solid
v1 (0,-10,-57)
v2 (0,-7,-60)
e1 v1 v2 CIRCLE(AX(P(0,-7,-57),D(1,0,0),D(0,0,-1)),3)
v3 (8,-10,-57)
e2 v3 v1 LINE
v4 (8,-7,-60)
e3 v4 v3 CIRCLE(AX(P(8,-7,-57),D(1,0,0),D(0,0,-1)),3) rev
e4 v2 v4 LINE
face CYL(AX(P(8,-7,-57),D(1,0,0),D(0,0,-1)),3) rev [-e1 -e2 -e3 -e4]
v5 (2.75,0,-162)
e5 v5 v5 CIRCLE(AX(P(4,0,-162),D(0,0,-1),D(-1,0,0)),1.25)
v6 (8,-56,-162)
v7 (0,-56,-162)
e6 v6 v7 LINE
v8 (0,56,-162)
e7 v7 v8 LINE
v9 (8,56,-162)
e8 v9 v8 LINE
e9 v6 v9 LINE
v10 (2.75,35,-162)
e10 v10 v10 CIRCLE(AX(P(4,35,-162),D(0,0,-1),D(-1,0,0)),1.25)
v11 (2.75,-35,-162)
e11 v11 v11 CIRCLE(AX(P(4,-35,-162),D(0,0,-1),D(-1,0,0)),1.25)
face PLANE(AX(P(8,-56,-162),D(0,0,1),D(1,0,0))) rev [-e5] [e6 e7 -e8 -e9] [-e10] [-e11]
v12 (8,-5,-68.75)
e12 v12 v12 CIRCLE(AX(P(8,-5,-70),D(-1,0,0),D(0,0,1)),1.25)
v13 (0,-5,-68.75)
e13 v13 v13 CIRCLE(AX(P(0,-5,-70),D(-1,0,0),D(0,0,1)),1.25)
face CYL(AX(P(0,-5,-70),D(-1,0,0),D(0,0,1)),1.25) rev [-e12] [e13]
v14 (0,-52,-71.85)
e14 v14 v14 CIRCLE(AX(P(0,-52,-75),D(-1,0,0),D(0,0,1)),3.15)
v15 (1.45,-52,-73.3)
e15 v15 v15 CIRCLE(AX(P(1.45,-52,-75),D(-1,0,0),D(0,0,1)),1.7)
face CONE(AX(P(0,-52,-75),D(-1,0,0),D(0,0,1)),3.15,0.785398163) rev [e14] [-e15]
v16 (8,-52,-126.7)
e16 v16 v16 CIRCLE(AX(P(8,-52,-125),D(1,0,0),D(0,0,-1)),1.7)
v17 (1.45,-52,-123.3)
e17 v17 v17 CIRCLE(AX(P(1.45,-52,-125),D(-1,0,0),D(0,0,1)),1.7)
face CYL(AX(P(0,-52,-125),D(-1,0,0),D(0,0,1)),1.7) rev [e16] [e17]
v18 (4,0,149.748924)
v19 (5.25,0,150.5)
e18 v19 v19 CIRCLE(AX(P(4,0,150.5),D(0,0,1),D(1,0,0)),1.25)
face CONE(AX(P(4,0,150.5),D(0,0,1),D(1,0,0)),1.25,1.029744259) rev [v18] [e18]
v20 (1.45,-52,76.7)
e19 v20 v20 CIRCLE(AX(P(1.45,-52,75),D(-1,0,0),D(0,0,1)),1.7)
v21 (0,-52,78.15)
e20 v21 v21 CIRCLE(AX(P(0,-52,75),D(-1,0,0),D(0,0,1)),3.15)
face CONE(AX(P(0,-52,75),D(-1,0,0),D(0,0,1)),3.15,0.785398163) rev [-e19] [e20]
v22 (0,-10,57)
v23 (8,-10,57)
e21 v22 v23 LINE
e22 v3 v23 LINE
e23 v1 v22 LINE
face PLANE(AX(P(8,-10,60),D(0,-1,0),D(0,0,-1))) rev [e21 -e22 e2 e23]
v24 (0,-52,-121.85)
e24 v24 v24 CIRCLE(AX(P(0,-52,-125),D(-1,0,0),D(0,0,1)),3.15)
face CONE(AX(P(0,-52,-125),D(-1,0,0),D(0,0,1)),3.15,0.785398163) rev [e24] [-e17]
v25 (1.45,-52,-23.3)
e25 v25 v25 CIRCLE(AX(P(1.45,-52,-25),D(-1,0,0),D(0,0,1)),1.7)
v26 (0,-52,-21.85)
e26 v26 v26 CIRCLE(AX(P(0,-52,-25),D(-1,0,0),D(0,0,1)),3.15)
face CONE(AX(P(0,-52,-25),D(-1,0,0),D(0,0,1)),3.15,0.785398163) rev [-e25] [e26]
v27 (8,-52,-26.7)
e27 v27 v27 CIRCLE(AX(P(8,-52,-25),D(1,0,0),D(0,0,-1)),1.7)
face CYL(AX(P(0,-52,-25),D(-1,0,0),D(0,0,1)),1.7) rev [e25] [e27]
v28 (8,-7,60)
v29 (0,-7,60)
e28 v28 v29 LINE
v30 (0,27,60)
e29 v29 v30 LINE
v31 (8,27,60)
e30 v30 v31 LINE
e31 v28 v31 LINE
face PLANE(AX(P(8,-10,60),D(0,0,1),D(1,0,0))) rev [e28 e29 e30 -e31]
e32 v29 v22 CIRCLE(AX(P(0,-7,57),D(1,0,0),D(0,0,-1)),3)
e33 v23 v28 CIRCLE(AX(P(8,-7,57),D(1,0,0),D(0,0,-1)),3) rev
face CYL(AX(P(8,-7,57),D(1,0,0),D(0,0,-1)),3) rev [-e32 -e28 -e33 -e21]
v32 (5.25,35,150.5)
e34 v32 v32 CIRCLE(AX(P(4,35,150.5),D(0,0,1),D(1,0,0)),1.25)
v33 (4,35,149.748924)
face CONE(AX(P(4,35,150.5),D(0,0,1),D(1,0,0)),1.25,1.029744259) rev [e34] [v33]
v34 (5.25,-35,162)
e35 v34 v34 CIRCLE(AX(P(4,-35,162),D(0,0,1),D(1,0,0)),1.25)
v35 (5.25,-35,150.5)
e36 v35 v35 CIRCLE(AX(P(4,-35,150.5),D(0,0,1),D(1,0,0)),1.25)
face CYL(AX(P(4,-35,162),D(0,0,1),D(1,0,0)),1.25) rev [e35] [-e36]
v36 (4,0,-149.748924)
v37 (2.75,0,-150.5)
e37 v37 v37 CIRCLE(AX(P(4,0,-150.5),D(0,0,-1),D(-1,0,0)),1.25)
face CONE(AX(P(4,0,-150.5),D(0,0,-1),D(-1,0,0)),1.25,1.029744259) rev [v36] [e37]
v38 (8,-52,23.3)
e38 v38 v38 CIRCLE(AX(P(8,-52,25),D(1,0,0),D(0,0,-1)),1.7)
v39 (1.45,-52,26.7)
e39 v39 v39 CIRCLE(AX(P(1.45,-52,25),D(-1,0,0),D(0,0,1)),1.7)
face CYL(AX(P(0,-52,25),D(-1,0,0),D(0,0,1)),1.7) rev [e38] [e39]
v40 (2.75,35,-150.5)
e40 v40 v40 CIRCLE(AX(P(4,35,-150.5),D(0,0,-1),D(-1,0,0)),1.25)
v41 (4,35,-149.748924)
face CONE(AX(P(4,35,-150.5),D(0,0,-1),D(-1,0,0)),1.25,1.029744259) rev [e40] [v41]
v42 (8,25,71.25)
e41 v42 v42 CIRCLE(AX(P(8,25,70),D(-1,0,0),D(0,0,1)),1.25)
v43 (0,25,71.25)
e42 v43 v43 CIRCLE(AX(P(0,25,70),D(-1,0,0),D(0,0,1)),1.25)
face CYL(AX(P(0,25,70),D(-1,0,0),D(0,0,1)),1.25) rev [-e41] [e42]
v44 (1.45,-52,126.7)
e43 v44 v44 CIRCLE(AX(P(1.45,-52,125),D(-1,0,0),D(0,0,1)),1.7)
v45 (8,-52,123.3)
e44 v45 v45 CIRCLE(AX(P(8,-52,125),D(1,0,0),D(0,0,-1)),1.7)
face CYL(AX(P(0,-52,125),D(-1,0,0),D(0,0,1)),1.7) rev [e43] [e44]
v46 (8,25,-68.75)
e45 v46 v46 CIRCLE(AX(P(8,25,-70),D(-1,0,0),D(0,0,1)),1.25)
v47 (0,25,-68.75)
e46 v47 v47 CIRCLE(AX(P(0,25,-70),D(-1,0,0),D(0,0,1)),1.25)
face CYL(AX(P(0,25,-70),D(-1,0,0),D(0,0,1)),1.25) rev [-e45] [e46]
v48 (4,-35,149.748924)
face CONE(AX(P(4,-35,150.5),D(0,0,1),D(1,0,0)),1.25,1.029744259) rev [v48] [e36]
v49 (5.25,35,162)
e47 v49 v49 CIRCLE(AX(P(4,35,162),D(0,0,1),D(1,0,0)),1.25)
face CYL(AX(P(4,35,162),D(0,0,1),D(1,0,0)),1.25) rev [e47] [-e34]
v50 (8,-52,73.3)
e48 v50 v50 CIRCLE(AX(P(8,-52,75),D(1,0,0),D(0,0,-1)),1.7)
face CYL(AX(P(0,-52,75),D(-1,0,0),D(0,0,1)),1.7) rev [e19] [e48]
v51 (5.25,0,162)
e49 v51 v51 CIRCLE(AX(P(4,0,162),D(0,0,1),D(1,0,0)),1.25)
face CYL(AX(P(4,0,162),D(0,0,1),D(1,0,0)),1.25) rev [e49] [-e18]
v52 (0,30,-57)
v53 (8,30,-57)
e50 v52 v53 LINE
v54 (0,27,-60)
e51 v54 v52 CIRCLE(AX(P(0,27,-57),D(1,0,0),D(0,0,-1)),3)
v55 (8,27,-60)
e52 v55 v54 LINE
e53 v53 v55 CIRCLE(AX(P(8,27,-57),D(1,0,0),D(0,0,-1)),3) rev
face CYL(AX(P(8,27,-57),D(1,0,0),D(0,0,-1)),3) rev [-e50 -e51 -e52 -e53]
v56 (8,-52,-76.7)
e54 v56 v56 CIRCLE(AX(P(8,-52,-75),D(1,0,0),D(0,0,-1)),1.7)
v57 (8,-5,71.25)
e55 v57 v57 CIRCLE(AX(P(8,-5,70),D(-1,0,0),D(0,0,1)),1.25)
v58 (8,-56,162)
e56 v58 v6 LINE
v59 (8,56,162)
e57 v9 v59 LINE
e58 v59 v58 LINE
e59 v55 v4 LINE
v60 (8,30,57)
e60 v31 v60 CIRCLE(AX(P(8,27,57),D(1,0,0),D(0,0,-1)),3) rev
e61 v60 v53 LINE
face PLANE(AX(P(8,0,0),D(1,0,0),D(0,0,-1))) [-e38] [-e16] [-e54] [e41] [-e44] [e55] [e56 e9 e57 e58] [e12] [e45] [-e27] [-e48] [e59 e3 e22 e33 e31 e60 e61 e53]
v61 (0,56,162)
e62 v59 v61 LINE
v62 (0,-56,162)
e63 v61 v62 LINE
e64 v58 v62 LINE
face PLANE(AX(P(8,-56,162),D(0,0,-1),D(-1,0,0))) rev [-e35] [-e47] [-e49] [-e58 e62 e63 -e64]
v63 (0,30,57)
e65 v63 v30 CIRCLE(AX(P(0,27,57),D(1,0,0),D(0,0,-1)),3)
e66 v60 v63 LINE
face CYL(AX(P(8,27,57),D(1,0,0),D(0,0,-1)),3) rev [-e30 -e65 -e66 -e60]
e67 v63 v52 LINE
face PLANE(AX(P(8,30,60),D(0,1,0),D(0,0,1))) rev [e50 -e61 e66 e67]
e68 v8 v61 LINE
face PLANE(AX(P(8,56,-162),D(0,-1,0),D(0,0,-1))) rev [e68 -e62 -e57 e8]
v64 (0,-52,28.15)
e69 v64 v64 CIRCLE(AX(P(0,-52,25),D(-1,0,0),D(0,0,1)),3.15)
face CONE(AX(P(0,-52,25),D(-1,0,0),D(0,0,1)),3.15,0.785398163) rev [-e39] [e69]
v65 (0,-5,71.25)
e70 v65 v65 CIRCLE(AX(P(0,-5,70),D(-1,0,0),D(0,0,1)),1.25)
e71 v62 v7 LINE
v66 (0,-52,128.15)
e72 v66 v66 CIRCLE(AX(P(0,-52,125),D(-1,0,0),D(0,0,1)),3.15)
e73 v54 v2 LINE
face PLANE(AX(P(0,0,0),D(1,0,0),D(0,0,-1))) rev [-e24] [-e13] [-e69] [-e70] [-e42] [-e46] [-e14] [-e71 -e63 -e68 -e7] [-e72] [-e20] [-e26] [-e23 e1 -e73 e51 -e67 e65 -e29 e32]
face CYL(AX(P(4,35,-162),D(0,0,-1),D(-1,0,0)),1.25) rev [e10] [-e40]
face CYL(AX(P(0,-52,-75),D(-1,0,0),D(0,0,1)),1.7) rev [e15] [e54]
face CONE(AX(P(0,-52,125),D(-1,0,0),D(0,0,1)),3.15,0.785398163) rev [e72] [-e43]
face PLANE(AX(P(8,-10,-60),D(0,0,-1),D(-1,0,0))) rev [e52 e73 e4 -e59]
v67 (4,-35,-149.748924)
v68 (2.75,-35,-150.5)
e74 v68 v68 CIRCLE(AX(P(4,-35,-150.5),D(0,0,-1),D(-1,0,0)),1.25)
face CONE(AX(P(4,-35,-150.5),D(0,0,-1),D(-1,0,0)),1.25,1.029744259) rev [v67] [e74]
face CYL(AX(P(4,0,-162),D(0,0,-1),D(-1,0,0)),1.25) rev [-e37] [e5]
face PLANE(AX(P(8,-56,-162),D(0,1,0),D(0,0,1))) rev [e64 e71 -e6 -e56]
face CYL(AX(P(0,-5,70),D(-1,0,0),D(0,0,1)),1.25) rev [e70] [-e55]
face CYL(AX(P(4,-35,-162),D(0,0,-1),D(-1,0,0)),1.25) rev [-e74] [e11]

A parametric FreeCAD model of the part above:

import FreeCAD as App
import Part
import Sketcher
Q = App.Units.Quantity


def edges_at(feature, points):
    """Names of the edges that pass closest to the given points."""
    edges = feature.Shape.Edges
    near = lambda p: min(range(len(edges)), key=lambda i: edges[i].distToShape(Part.Vertex(*p))[0])
    return sorted({f"Edge{near(p) + 1}" for p in points})

doc = App.newDocument("Part")
params = doc.addObject("Spreadsheet::Sheet", "Params")
for row, (alias, value) in enumerate([
    ("sketch1_width", "112 mm"),
    ("sketch1_height", "324 mm"),
    ("pad1_length", "8 mm"),
    ("sketch2_height", "11.5 mm"),
    ("sketch2_width", "1.25 mm"),
    ("groove_angle", "360 deg"),
    ("linearpattern_pitch", "35 mm"),
    ("linearpattern2_pitch", "70 mm"),
    ("sketch3_height", "11.5 mm"),
    ("sketch3_width", "1.25 mm"),
    ("groove2_angle", "360 deg"),
    ("sketch4_height", "11.5 mm"),
    ("sketch4_width", "1.25 mm"),
    ("groove3_angle", "360 deg"),
    ("sketch5_diameter", "3.4 mm"),
    ("hole_diameter", "3.4 mm"),
    ("hole_depth", "11.5 mm"),
    ("hole_csink_diameter", "6.3 mm"),
    ("sketch6_width", "40 mm"),
    ("sketch6_height", "120 mm"),
    ("sketch7_diameter", "2.5 mm"),
    ("hole2_diameter", "2.5 mm"),
    ("fillet_radius", "3 mm"),
], start=1):
    params.set(f"A{row}", alias)
    params.set(f"B{row}", "=" + value)
    params.setAlias(f"B{row}", alias)

body = doc.addObject("PartDesign::Body", "Body")

# Sketch on YZ plane
sketch1 = body.newObject("Sketcher::SketchObject", "Sketch")
sketch1.AttachmentSupport = (doc.getObject("YZ_Plane"), [""])
sketch1.MapMode = "FlatFace"
sketch1.addGeometry([
    Part.LineSegment(App.Vector(56, 162, 0), App.Vector(-56, 162, 0)),
    Part.LineSegment(App.Vector(-56, 162, 0), App.Vector(-56, -162, 0)),
    Part.LineSegment(App.Vector(-56, -162, 0), App.Vector(56, -162, 0)),
    Part.LineSegment(App.Vector(56, -162, 0), App.Vector(56, 162, 0)),
], False)
sketch1.addConstraint([
    Sketcher.Constraint("Coincident", 0, 2, 1, 1),
    Sketcher.Constraint("Coincident", 1, 2, 2, 1),
    Sketcher.Constraint("Coincident", 2, 2, 3, 1),
    Sketcher.Constraint("Coincident", 3, 2, 0, 1),
    Sketcher.Constraint("Horizontal", 0),
    Sketcher.Constraint("Vertical", 1),
    Sketcher.Constraint("Horizontal", 2),
    Sketcher.Constraint("Vertical", 3),
    Sketcher.Constraint("Symmetric", 0, 2, 2, 2, -1, 1),
    Sketcher.Constraint("DistanceX", 0, 2, 0, 1, 112.0),
    Sketcher.Constraint("DistanceY", 1, 2, 1, 1, 324.0),
])
sketch1.setExpression("Constraints[9]", "Params.sketch1_width")
sketch1.setExpression("Constraints[10]", "Params.sketch1_height")
pad1 = body.newObject("PartDesign::Pad", "Pad")
pad1.Profile = sketch1
pad1.setExpression("Length", "Params.pad1_length")

# Sketch on YZ plane
sketch2 = body.newObject("Sketcher::SketchObject", "Sketch001")
sketch2.AttachmentSupport = (doc.getObject("YZ_Plane"), [""])
sketch2.MapMode = "FlatFace"
sketch2.AttachmentOffset = App.Placement(App.Vector(0, 0, 4), App.Rotation())
sketch2.addGeometry([
    Part.LineSegment(App.Vector(35, 149.7, 0), App.Vector(35, 162, 0)),
    Part.LineSegment(App.Vector(35, 162, 0), App.Vector(33.8, 162, 0)),
    Part.LineSegment(App.Vector(33.8, 162, 0), App.Vector(33.8, 150.5, 0)),
    Part.LineSegment(App.Vector(33.8, 150.5, 0), App.Vector(35, 149.7, 0)),
], False)
sketch2.addGeometry(Part.LineSegment(App.Vector(35, 162, 0), App.Vector(35, 149.7, 0)), True)  # axis
sketch2.addConstraint([
    Sketcher.Constraint("Coincident", 0, 2, 1, 1),
    Sketcher.Constraint("Coincident", 1, 2, 2, 1),
    Sketcher.Constraint("Coincident", 2, 2, 3, 1),
    Sketcher.Constraint("Coincident", 3, 2, 0, 1),
    Sketcher.Constraint("Vertical", 0),
    Sketcher.Constraint("Horizontal", 1),
    Sketcher.Constraint("Vertical", 2),
    Sketcher.Constraint("Vertical", 4),
    Sketcher.Constraint("Coincident", 4, 1, 0, 2),
    Sketcher.Constraint("Equal", 0, 4),
    Sketcher.Constraint("Angle", 3, Q("-31 deg")),
    Sketcher.Constraint("DistanceY", 2, 2, 2, 1, 11.5),
    Sketcher.Constraint("DistanceX", -1, 1, 0, 2, 35.0),
    Sketcher.Constraint("DistanceY", -1, 1, 0, 2, 162.0),
    Sketcher.Constraint("DistanceX", 1, 2, 1, 1, 1.25),
])
sketch2.setExpression("Constraints[11]", "Params.sketch2_height")
sketch2.setExpression("Constraints[14]", "Params.sketch2_width")
groove = body.newObject("PartDesign::Groove", "Groove")
groove.Profile = sketch2
groove.ReferenceAxis = (sketch2, ["Axis0"])
groove.setExpression("Angle", "Params.groove_angle")
doc.recompute()

linearpattern = body.newObject("PartDesign::LinearPattern", "LinearPattern")
linearpattern.Originals = [groove]
linearpattern.Direction = (doc.getObject("Y_Axis"), [""])
linearpattern.Mode = "offset"
linearpattern.setExpression("Offset", "Params.linearpattern_pitch")
linearpattern.Occurrences = 2
linearpattern.Reversed = True
body.Tip = linearpattern
doc.recompute()

linearpattern2 = body.newObject("PartDesign::LinearPattern", "LinearPattern001")
linearpattern2.Originals = [groove]
linearpattern2.Direction = (doc.getObject("Y_Axis"), [""])
linearpattern2.Mode = "offset"
linearpattern2.setExpression("Offset", "Params.linearpattern2_pitch")
linearpattern2.Occurrences = 2
linearpattern2.Reversed = True
body.Tip = linearpattern2
doc.recompute()

mirrored = body.newObject("PartDesign::Mirrored", "Mirrored")
mirrored.Originals = [groove]
mirrored.MirrorPlane = (doc.getObject("XY_Plane"), [""])
body.Tip = mirrored

# Sketch on YZ plane
sketch3 = body.newObject("Sketcher::SketchObject", "Sketch002")
sketch3.AttachmentSupport = (doc.getObject("YZ_Plane"), [""])
sketch3.MapMode = "FlatFace"
sketch3.AttachmentOffset = App.Placement(App.Vector(0, 0, 4), App.Rotation())
sketch3.addGeometry([
    Part.LineSegment(App.Vector(0, -162, 0), App.Vector(0, -149.7, 0)),
    Part.LineSegment(App.Vector(0, -149.7, 0), App.Vector(-1.2, -150.5, 0)),
    Part.LineSegment(App.Vector(-1.2, -150.5, 0), App.Vector(-1.2, -162, 0)),
    Part.LineSegment(App.Vector(-1.2, -162, 0), App.Vector(0, -162, 0)),
], False)
sketch3.addConstraint([
    Sketcher.Constraint("Coincident", 0, 2, 1, 1),
    Sketcher.Constraint("Coincident", 1, 2, 2, 1),
    Sketcher.Constraint("Coincident", 2, 2, 3, 1),
    Sketcher.Constraint("Coincident", 3, 2, 0, 1),
    Sketcher.Constraint("Vertical", 0),
    Sketcher.Constraint("Vertical", 2),
    Sketcher.Constraint("Horizontal", 3),
    Sketcher.Constraint("PointOnObject", 0, 2, -2),
    Sketcher.Constraint("Angle", 1, Q("-149 deg")),
    Sketcher.Constraint("DistanceY", 2, 2, 2, 1, 11.5),
    Sketcher.Constraint("DistanceY", 2, 2, -1, 1, 162.0),
    Sketcher.Constraint("DistanceX", 3, 1, 3, 2, 1.25),
])
sketch3.setExpression("Constraints[9]", "Params.sketch3_height")
sketch3.setExpression("Constraints[11]", "Params.sketch3_width")
groove2 = body.newObject("PartDesign::Groove", "Groove001")
groove2.Profile = sketch3
groove2.ReferenceAxis = (sketch3, ["V_Axis"])
groove2.setExpression("Angle", "Params.groove2_angle")

# Sketch on YZ plane
sketch4 = body.newObject("Sketcher::SketchObject", "Sketch003")
sketch4.AttachmentSupport = (doc.getObject("YZ_Plane"), [""])
sketch4.MapMode = "FlatFace"
sketch4.AttachmentOffset = App.Placement(App.Vector(0, 0, 4), App.Rotation())
sketch4.addGeometry([
    Part.LineSegment(App.Vector(-35, -162, 0), App.Vector(-35, -149.7, 0)),
    Part.LineSegment(App.Vector(-35, -149.7, 0), App.Vector(-36.2, -150.5, 0)),
    Part.LineSegment(App.Vector(-36.2, -150.5, 0), App.Vector(-36.2, -162, 0)),
    Part.LineSegment(App.Vector(-36.2, -162, 0), App.Vector(-35, -162, 0)),
], False)
sketch4.addGeometry(Part.LineSegment(App.Vector(-35, -149.7, 0), App.Vector(-35, -162, 0)), True)  # axis
sketch4.addConstraint([
    Sketcher.Constraint("Coincident", 0, 2, 1, 1),
    Sketcher.Constraint("Coincident", 1, 2, 2, 1),
    Sketcher.Constraint("Coincident", 2, 2, 3, 1),
    Sketcher.Constraint("Coincident", 3, 2, 0, 1),
    Sketcher.Constraint("Vertical", 0),
    Sketcher.Constraint("Vertical", 2),
    Sketcher.Constraint("Horizontal", 3),
    Sketcher.Constraint("Vertical", 4),
    Sketcher.Constraint("Coincident", 4, 1, 0, 2),
    Sketcher.Constraint("Horizontal", 2, 2, 4, 2),
    Sketcher.Constraint("Angle", 1, Q("-149 deg")),
    Sketcher.Constraint("DistanceY", 2, 2, 2, 1, 11.5),
    Sketcher.Constraint("DistanceX", 0, 2, -1, 1, 35.0),
    Sketcher.Constraint("DistanceY", 2, 2, -1, 1, 162.0),
    Sketcher.Constraint("DistanceX", 3, 1, 3, 2, 1.25),
])
sketch4.setExpression("Constraints[11]", "Params.sketch4_height")
sketch4.setExpression("Constraints[14]", "Params.sketch4_width")
groove3 = body.newObject("PartDesign::Groove", "Groove002")
groove3.Profile = sketch4
groove3.ReferenceAxis = (sketch4, ["Axis0"])
groove3.setExpression("Angle", "Params.groove3_angle")

# Sketch on YZ plane
sketch5 = body.newObject("Sketcher::SketchObject", "Sketch004")
sketch5.AttachmentSupport = (doc.getObject("YZ_Plane"), [""])
sketch5.MapMode = "FlatFace"
sketch5.addGeometry([
    Part.Circle(App.Vector(-52, -125, 0), App.Vector(0, 0, 1), 1.7),  # 0
    Part.Circle(App.Vector(-52, -75, 0), App.Vector(0, 0, 1), 1.7),  # 1
    Part.Circle(App.Vector(-52, -25, 0), App.Vector(0, 0, 1), 1.7),  # 2
    Part.Circle(App.Vector(-52, 25, 0), App.Vector(0, 0, 1), 1.7),  # 3
    Part.Circle(App.Vector(-52, 75, 0), App.Vector(0, 0, 1), 1.7),  # 4
    Part.Circle(App.Vector(-52, 125, 0), App.Vector(0, 0, 1), 1.7),  # 5
], False)
sketch5.addConstraint([
    Sketcher.Constraint("Equal", 0, 1),
    Sketcher.Constraint("Equal", 1, 2),
    Sketcher.Constraint("Equal", 2, 3),
    Sketcher.Constraint("Equal", 3, 4),
    Sketcher.Constraint("Equal", 4, 5),
    Sketcher.Constraint("Symmetric", 2, 3, 3, 3, -1),
    Sketcher.Constraint("Symmetric", 1, 3, 4, 3, -1),
    Sketcher.Constraint("Symmetric", 0, 3, 5, 3, -1),
    Sketcher.Constraint("Vertical", 0, 3, 1, 3),
    Sketcher.Constraint("Vertical", 1, 3, 2, 3),
    Sketcher.Constraint("Diameter", 0, 3.4),
    Sketcher.Constraint("DistanceX", 0, 3, -1, 1, 52.0),
    Sketcher.Constraint("DistanceY", 0, 3, -1, 1, 125.0),
    Sketcher.Constraint("DistanceY", 1, 3, -1, 1, 75.0),
    Sketcher.Constraint("DistanceY", 2, 3, -1, 1, 25.0),
])
sketch5.setExpression("Constraints[10]", "Params.sketch5_diameter")
doc.recompute()
hole = body.newObject("PartDesign::Hole", "Hole")
hole.Profile = sketch5
hole.ThreadType = "None"
hole.setExpression("Diameter", "Params.hole_diameter")
hole.DepthType = "Dimension"
hole.setExpression("Depth", "Params.hole_depth")
hole.DrillPoint = "Angled"
hole.DrillPointAngle = 118
hole.HoleCutType = "Countersink"
hole.setExpression("HoleCutDiameter", "Params.hole_csink_diameter")
hole.HoleCutCountersinkAngle = 90
hole.Reversed = True

# Sketch on YZ plane
sketch6 = body.newObject("Sketcher::SketchObject", "Sketch005")
sketch6.AttachmentSupport = (doc.getObject("YZ_Plane"), [""])
sketch6.MapMode = "FlatFace"
sketch6.addGeometry([
    Part.LineSegment(App.Vector(30, -60, 0), App.Vector(-10, -60, 0)),
    Part.LineSegment(App.Vector(-10, -60, 0), App.Vector(-10, 60, 0)),
    Part.LineSegment(App.Vector(-10, 60, 0), App.Vector(30, 60, 0)),
    Part.LineSegment(App.Vector(30, 60, 0), App.Vector(30, -60, 0)),
], False)
sketch6.addConstraint([
    Sketcher.Constraint("Coincident", 0, 2, 1, 1),
    Sketcher.Constraint("Coincident", 1, 2, 2, 1),
    Sketcher.Constraint("Coincident", 2, 2, 3, 1),
    Sketcher.Constraint("Coincident", 3, 2, 0, 1),
    Sketcher.Constraint("Horizontal", 0),
    Sketcher.Constraint("Vertical", 1),
    Sketcher.Constraint("Horizontal", 2),
    Sketcher.Constraint("Vertical", 3),
    Sketcher.Constraint("DistanceX", 0, 2, 0, 1, 40.0),
    Sketcher.Constraint("DistanceY", 1, 1, 1, 2, 120.0),
    Sketcher.Constraint("DistanceX", 0, 2, -1, 1, 10.0),
    Sketcher.Constraint("DistanceY", 0, 2, -1, 1, 60.0),
])
sketch6.setExpression("Constraints[8]", "Params.sketch6_width")
sketch6.setExpression("Constraints[9]", "Params.sketch6_height")
pocket1 = body.newObject("PartDesign::Pocket", "Pocket")
pocket1.Profile = sketch6
pocket1.Type = "ThroughAll"
pocket1.Reversed = True

# Sketch on YZ plane
sketch7 = body.newObject("Sketcher::SketchObject", "Sketch006")
sketch7.AttachmentSupport = (doc.getObject("YZ_Plane"), [""])
sketch7.MapMode = "FlatFace"
sketch7.addGeometry([
    Part.Circle(App.Vector(25, -70, 0), App.Vector(0, 0, 1), 1.2),
    Part.Circle(App.Vector(-5, -70, 0), App.Vector(0, 0, 1), 1.2),
], False)
sketch7.addConstraint([
    Sketcher.Constraint("Equal", 0, 1),
    Sketcher.Constraint("Horizontal", 0, 3, 1, 3),
    Sketcher.Constraint("Diameter", 0, 2.5),
    Sketcher.Constraint("DistanceX", -1, 1, 0, 3, 25.0),
    Sketcher.Constraint("DistanceY", 0, 3, -1, 1, 70.0),
    Sketcher.Constraint("DistanceX", 1, 3, -1, 1, 5.0),
])
sketch7.setExpression("Constraints[2]", "Params.sketch7_diameter")
doc.recompute()
hole2 = body.newObject("PartDesign::Hole", "Hole001")
hole2.Profile = sketch7
hole2.ThreadType = "None"
hole2.setExpression("Diameter", "Params.hole2_diameter")
hole2.DepthType = "ThroughAll"
hole2.Reversed = True
doc.recompute()

mirrored2 = body.newObject("PartDesign::Mirrored", "Mirrored001")
mirrored2.Originals = [hole2]
mirrored2.MirrorPlane = (doc.getObject("XY_Plane"), [""])
body.Tip = mirrored2
doc.recompute()

fillet = body.newObject("PartDesign::Fillet", "Fillet")
fillet.Base = (mirrored2, edges_at(mirrored2, [
    (4, -10, -60),
    (4, 30, -60),
    (4, 30, 60),
    (4, -10, 60),
]))
fillet.setExpression("Radius", "Params.fillet_radius")

doc.recompute()
